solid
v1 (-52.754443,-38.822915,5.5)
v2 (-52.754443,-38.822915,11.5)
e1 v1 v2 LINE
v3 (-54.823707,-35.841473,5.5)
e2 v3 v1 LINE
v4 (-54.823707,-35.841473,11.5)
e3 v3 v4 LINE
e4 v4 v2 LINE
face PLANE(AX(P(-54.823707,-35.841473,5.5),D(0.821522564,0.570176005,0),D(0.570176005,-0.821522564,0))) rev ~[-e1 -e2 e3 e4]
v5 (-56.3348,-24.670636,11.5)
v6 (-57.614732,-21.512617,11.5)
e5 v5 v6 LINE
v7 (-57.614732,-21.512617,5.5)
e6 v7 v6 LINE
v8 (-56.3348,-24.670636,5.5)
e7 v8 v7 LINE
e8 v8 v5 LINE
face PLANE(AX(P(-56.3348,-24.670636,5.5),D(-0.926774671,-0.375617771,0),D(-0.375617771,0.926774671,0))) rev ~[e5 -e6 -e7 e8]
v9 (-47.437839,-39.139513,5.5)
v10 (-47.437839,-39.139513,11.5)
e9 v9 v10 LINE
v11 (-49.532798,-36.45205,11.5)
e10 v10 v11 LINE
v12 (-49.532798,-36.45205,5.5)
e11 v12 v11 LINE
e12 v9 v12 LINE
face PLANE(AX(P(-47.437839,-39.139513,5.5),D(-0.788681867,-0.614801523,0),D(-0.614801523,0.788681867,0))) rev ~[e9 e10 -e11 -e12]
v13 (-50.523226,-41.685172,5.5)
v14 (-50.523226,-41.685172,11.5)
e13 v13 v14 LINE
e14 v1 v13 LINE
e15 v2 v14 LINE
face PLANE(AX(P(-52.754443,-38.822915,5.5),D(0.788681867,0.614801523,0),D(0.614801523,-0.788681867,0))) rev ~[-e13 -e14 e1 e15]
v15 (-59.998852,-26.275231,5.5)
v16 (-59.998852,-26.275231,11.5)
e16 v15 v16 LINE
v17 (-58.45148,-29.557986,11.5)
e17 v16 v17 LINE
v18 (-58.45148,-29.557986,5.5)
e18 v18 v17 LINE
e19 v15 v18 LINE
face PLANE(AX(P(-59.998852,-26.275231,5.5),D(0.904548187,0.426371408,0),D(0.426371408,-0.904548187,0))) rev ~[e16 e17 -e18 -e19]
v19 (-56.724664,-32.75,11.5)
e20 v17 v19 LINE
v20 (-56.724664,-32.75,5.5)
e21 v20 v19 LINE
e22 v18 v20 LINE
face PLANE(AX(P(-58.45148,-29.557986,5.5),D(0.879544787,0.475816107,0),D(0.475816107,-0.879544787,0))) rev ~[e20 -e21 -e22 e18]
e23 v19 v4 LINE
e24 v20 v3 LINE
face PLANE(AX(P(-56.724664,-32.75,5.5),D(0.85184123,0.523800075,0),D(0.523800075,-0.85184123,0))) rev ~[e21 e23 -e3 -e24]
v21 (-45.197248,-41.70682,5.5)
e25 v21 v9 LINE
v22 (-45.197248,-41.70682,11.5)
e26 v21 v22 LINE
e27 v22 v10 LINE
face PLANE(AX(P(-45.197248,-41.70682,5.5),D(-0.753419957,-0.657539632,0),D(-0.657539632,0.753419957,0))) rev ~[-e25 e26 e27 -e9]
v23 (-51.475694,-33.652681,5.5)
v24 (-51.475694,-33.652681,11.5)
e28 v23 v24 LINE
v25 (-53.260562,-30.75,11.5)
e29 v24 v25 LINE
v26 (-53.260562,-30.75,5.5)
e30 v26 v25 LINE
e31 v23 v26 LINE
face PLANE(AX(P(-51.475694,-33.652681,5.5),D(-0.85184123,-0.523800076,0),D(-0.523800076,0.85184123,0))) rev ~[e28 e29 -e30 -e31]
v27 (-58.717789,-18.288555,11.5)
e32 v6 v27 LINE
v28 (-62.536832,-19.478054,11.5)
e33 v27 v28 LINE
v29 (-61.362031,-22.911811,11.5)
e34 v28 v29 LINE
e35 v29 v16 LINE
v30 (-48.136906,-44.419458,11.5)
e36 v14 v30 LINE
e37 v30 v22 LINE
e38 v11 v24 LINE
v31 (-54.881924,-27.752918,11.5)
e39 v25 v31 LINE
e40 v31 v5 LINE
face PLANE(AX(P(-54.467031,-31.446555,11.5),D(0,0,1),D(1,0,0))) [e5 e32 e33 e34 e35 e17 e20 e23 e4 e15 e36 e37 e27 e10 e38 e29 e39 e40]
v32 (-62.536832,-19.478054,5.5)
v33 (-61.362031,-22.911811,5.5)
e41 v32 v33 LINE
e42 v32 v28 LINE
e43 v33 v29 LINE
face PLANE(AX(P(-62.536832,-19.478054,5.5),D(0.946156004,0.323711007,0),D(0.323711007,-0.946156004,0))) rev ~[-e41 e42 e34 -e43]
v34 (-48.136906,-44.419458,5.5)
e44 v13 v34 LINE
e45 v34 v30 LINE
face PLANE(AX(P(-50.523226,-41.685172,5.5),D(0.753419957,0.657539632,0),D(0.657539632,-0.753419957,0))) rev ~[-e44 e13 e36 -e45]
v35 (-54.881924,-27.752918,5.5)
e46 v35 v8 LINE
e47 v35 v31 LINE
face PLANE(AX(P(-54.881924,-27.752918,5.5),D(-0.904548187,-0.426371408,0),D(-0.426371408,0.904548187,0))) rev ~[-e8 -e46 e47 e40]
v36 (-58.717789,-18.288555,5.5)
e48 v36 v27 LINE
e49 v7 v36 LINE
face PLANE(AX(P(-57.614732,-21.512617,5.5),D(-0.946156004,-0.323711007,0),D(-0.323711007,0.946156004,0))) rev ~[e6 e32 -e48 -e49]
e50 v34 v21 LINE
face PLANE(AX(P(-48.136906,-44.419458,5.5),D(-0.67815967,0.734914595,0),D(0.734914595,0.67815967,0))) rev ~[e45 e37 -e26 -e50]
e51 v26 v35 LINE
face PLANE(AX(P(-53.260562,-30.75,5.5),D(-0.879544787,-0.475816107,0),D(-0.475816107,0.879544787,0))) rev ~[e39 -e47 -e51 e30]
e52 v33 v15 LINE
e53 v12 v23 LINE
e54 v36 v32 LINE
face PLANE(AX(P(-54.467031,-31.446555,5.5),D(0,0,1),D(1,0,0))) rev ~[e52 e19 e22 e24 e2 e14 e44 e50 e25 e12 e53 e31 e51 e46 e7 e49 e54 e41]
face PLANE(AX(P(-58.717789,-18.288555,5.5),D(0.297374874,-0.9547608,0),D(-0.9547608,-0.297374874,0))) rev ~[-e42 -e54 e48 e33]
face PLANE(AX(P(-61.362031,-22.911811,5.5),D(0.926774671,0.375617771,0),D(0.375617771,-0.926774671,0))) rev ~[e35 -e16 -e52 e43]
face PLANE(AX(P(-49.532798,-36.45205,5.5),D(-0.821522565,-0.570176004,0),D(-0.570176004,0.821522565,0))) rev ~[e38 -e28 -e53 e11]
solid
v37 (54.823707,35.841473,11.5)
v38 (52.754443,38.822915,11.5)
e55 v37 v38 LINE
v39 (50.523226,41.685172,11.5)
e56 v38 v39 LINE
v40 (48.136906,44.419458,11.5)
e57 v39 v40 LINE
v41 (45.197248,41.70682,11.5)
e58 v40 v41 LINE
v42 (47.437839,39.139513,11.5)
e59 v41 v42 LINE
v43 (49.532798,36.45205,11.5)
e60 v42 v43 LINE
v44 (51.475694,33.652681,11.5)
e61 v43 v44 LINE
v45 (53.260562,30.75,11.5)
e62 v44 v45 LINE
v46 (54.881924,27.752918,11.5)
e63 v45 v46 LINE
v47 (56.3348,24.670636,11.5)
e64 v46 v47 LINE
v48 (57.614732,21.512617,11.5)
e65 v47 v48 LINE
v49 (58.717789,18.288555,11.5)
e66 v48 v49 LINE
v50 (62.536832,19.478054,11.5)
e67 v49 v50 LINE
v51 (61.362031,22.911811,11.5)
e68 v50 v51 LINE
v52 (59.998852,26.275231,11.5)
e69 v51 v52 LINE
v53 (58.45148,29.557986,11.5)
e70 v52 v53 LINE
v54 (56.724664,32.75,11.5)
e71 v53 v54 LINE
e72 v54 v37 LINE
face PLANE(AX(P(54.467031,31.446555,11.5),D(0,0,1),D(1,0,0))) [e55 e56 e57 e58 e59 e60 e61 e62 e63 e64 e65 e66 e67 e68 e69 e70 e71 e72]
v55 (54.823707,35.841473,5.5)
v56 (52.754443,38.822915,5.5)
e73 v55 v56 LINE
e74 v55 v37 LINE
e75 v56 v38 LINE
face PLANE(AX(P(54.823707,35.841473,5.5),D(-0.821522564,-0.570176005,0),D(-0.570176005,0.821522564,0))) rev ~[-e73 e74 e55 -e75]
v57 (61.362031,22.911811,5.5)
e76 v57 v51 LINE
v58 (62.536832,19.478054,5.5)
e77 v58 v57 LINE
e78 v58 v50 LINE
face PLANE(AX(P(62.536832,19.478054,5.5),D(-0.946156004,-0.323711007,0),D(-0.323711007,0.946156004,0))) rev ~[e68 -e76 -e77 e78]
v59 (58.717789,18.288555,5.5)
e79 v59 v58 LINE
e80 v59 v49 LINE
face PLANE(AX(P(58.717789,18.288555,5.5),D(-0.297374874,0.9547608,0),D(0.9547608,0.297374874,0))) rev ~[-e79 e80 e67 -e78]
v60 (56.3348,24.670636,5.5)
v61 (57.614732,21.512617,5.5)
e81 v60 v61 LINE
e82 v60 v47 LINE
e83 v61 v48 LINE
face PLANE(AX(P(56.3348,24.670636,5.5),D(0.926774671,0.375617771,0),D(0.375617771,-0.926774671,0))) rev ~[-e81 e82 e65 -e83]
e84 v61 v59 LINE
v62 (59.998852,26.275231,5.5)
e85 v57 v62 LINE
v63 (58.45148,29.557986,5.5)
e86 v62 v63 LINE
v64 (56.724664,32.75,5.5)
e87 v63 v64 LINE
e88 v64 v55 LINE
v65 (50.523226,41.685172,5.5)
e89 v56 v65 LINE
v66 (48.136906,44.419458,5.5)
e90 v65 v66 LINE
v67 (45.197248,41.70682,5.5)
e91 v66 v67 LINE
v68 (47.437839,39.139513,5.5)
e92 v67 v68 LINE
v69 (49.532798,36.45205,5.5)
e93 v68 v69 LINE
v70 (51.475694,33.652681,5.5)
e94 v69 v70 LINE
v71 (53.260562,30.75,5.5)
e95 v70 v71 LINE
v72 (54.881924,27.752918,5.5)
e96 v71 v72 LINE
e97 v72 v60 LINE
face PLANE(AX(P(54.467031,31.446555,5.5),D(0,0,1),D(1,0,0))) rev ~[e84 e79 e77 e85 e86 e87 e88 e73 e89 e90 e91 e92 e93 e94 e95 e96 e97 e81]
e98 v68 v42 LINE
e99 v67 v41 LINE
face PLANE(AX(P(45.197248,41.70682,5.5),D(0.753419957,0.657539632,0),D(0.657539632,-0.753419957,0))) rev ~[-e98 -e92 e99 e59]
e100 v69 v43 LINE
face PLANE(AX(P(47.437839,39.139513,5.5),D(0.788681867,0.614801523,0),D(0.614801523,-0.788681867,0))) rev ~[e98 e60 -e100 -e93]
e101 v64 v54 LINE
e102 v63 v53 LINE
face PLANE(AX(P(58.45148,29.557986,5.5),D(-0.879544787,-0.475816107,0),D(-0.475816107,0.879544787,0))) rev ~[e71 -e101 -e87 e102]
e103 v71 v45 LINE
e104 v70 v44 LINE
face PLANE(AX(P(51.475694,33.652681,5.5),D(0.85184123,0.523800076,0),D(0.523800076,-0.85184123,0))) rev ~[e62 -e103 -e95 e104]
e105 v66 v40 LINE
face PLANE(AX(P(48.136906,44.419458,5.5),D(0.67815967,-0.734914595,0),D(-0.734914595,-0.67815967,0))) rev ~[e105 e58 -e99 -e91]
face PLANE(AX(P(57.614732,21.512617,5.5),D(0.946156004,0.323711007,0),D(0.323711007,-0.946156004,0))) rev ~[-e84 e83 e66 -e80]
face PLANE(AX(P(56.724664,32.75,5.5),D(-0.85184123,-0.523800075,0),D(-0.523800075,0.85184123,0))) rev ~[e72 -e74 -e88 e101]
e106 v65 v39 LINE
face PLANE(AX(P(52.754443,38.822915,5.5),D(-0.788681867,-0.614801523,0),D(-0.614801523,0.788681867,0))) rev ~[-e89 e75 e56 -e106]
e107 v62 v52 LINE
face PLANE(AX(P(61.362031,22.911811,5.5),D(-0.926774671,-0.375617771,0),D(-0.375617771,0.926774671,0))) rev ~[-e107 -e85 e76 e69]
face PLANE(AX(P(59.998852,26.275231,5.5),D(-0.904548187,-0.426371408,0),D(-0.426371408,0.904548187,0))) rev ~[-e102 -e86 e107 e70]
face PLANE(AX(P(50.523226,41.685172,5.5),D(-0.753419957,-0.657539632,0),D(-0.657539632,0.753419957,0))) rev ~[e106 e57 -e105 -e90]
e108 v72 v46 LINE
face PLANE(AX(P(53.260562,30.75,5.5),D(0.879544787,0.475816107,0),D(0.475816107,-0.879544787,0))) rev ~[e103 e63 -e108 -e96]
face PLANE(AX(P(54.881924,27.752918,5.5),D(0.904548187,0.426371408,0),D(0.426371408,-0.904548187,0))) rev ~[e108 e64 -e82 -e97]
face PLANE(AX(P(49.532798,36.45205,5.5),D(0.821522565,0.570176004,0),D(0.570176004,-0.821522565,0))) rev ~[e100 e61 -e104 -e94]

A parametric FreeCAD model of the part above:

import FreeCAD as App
import Part
import Sketcher
from FreeCAD import Vector

doc = App.newDocument("Part")
body = doc.addObject("PartDesign::Body", "Body")

sketch1 = body.newObject("Sketcher::SketchObject", "Sketch")
sketch1.AttachmentSupport = (doc.getObject("XY_Plane"), [""])
sketch1.MapMode = "FlatFace"
sketch1.AttachmentOffset = App.Placement(Vector(0, 0, 5.5), App.Rotation())
sketch1.addGeometry(Part.LineSegment(Vector(62.536832, 19.478054, 0), Vector(61.362031, 22.911811, 0)), False)
sketch1.addGeometry(Part.LineSegment(Vector(61.362031, 22.911811, 0), Vector(59.998852, 26.275231, 0)), False)
sketch1.addGeometry(Part.LineSegment(Vector(59.998852, 26.275231, 0), Vector(58.45148, 29.557986, 0)), False)
sketch1.addGeometry(Part.LineSegment(Vector(58.45148, 29.557986, 0), Vector(56.724664, 32.75, 0)), False)
sketch1.addGeometry(Part.LineSegment(Vector(56.724664, 32.75, 0), Vector(54.823707, 35.841473, 0)), False)
sketch1.addGeometry(Part.LineSegment(Vector(54.823707, 35.841473, 0), Vector(52.754443, 38.822915, 0)), False)
sketch1.addGeometry(Part.LineSegment(Vector(52.754443, 38.822915, 0), Vector(50.523226, 41.685172, 0)), False)
sketch1.addGeometry(Part.LineSegment(Vector(50.523226, 41.685172, 0), Vector(48.136906, 44.419458, 0)), False)
sketch1.addGeometry(Part.LineSegment(Vector(48.136906, 44.419458, 0), Vector(45.197248, 41.70682, 0)), False)
sketch1.addGeometry(Part.LineSegment(Vector(45.197248, 41.70682, 0), Vector(47.437839, 39.139513, 0)), False)
sketch1.addGeometry(Part.LineSegment(Vector(47.437839, 39.139513, 0), Vector(49.532798, 36.45205, 0)), False)
sketch1.addGeometry(Part.LineSegment(Vector(49.532798, 36.45205, 0), Vector(51.475694, 33.652681, 0)), False)
sketch1.addGeometry(Part.LineSegment(Vector(51.475694, 33.652681, 0), Vector(53.260562, 30.75, 0)), False)
sketch1.addGeometry(Part.LineSegment(Vector(53.260562, 30.75, 0), Vector(54.881924, 27.752918, 0)), False)
sketch1.addGeometry(Part.LineSegment(Vector(54.881924, 27.752918, 0), Vector(56.3348, 24.670636, 0)), False)
sketch1.addGeometry(Part.LineSegment(Vector(56.3348, 24.670636, 0), Vector(57.614732, 21.512617, 0)), False)
sketch1.addGeometry(Part.LineSegment(Vector(57.614732, 21.512617, 0), Vector(58.717789, 18.288555, 0)), False)
sketch1.addGeometry(Part.LineSegment(Vector(58.717789, 18.288555, 0), Vector(62.536832, 19.478054, 0)), False)
sketch1.addConstraint(Sketcher.Constraint("Coincident", 0, 2, 1, 1))
sketch1.addConstraint(Sketcher.Constraint("Coincident", 1, 2, 2, 1))
sketch1.addConstraint(Sketcher.Constraint("Coincident", 2, 2, 3, 1))
sketch1.addConstraint(Sketcher.Constraint("Coincident", 3, 2, 4, 1))
sketch1.addConstraint(Sketcher.Constraint("Coincident", 4, 2, 5, 1))
sketch1.addConstraint(Sketcher.Constraint("Coincident", 5, 2, 6, 1))
sketch1.addConstraint(Sketcher.Constraint("Coincident", 6, 2, 7, 1))
sketch1.addConstraint(Sketcher.Constraint("Coincident", 7, 2, 8, 1))
sketch1.addConstraint(Sketcher.Constraint("Coincident", 8, 2, 9, 1))
sketch1.addConstraint(Sketcher.Constraint("Coincident", 9, 2, 10, 1))
sketch1.addConstraint(Sketcher.Constraint("Coincident", 10, 2, 11, 1))
sketch1.addConstraint(Sketcher.Constraint("Coincident", 11, 2, 12, 1))
sketch1.addConstraint(Sketcher.Constraint("Coincident", 12, 2, 13, 1))
sketch1.addConstraint(Sketcher.Constraint("Coincident", 13, 2, 14, 1))
sketch1.addConstraint(Sketcher.Constraint("Coincident", 14, 2, 15, 1))
sketch1.addConstraint(Sketcher.Constraint("Coincident", 15, 2, 16, 1))
sketch1.addConstraint(Sketcher.Constraint("Coincident", 16, 2, 17, 1))
sketch1.addConstraint(Sketcher.Constraint("Coincident", 17, 2, 0, 1))
sketch1.addConstraint(Sketcher.Constraint("Distance", 8, 4.0))
sketch1.addConstraint(Sketcher.Constraint("Distance", 17, 4.0))
sketch1.addConstraint(Sketcher.Constraint("DistanceY", 12, 2, 3, 2, 2.0))
sketch1.addConstraint(Sketcher.Constraint("DistanceY", -1, 1, 3, 2, 32.75))
sketch1.addConstraint(Sketcher.Constraint("DistanceX", -1, 1, 14, 2, 56.3348))
sketch1.addConstraint(Sketcher.Constraint("DistanceY", 4, 2, 6, 2, 5.843699))
sketch1.addConstraint(Sketcher.Constraint("DistanceX", 7, 2, 4, 2, 6.686801))
sketch1.addConstraint(Sketcher.Constraint("DistanceY", 5, 2, 9, 2, 0.316598))
sketch1.addConstraint(Sketcher.Constraint("DistanceX", 12, 2, 3, 2, 3.464102))
sketch1.addConstraint(Sketcher.Constraint("DistanceX", 15, 2, 0, 2, 3.7473))
sketch1.addConstraint(Sketcher.Constraint("DistanceY", 15, 2, 13, 2, 6.240301))
sketch1.addConstraint(Sketcher.Constraint("DistanceX", 0, 2, 17, 2, 1.174801))
sketch1.addConstraint(Sketcher.Constraint("DistanceY", 16, 2, 17, 2, 1.189499))
sketch1.addConstraint(Sketcher.Constraint("DistanceX", -1, 1, 0, 2, 61.362031))
sketch1.addConstraint(Sketcher.Constraint("DistanceY", -1, 1, 0, 2, 22.911811))
sketch1.addConstraint(Sketcher.Constraint("DistanceY", -1, 1, 1, 2, 26.275231))
sketch1.addConstraint(Sketcher.Constraint("DistanceX", -1, 1, 2, 2, 58.45148))
sketch1.addConstraint(Sketcher.Constraint("DistanceY", -1, 1, 7, 2, 44.419458))
sketch1.addConstraint(Sketcher.Constraint("DistanceY", -1, 1, 8, 2, 41.70682))
sketch1.addConstraint(Sketcher.Constraint("DistanceX", -1, 1, 9, 2, 47.437839))
sketch1.addConstraint(Sketcher.Constraint("DistanceY", -1, 1, 10, 2, 36.45205))
sketch1.addConstraint(Sketcher.Constraint("DistanceY", -1, 1, 11, 2, 33.652681))
sketch1.addConstraint(Sketcher.Constraint("DistanceY", -1, 1, 13, 2, 27.752918))
sketch1.addConstraint(Sketcher.Constraint("DistanceX", 1, 2, 0, 2, 1.363179))
sketch1.addConstraint(Sketcher.Constraint("DistanceX", 3, 2, 1, 2, 3.274188))
sketch1.addConstraint(Sketcher.Constraint("DistanceY", 0, 2, 4, 2, 12.929662))
sketch1.addConstraint(Sketcher.Constraint("DistanceY", 4, 2, 5, 2, 2.981442))
sketch1.addConstraint(Sketcher.Constraint("DistanceX", 5, 2, 3, 2, 3.970221))
sketch1.addConstraint(Sketcher.Constraint("DistanceY", 2, 2, 5, 2, 9.264929))
sketch1.addConstraint(Sketcher.Constraint("DistanceX", 6, 2, 4, 2, 4.30048))
sketch1.addConstraint(Sketcher.Constraint("DistanceX", 8, 2, 9, 2, 2.240591))
sketch1.addConstraint(Sketcher.Constraint("DistanceX", 9, 2, 10, 2, 2.094959))
sketch1.addConstraint(Sketcher.Constraint("DistanceX", 11, 2, 3, 2, 5.24897))
sketch1.addConstraint(Sketcher.Constraint("DistanceX", 12, 2, 13, 2, 1.621361))
sketch1.addConstraint(Sketcher.Constraint("DistanceY", 14, 2, 13, 2, 3.082282))
sketch1.addConstraint(Sketcher.Constraint("DistanceY", 16, 2, 14, 2, 6.382082))
pad1 = body.newObject("PartDesign::Pad", "Pad")
pad1.Profile = sketch1
pad1.Length = 6
body2 = doc.addObject("PartDesign::Body", "Body001")

sketch2 = body2.newObject("Sketcher::SketchObject", "Sketch001")
sketch2.AttachmentSupport = (doc.getObject("XY_Plane001"), [""])
sketch2.MapMode = "FlatFace"
sketch2.AttachmentOffset = App.Placement(Vector(0, 0, 5.5), App.Rotation())
sketch2.addGeometry(Part.LineSegment(Vector(-62.536832, -19.478054, 0), Vector(-61.362031, -22.911811, 0)), False)
sketch2.addGeometry(Part.LineSegment(Vector(-61.362031, -22.911811, 0), Vector(-59.998852, -26.275231, 0)), False)
sketch2.addGeometry(Part.LineSegment(Vector(-59.998852, -26.275231, 0), Vector(-58.45148, -29.557986, 0)), False)
sketch2.addGeometry(Part.LineSegment(Vector(-58.45148, -29.557986, 0), Vector(-56.724664, -32.75, 0)), False)
sketch2.addGeometry(Part.LineSegment(Vector(-56.724664, -32.75, 0), Vector(-54.823707, -35.841473, 0)), False)
sketch2.addGeometry(Part.LineSegment(Vector(-54.823707, -35.841473, 0), Vector(-52.754443, -38.822915, 0)), False)
sketch2.addGeometry(Part.LineSegment(Vector(-52.754443, -38.822915, 0), Vector(-50.523226, -41.685172, 0)), False)
sketch2.addGeometry(Part.LineSegment(Vector(-50.523226, -41.685172, 0), Vector(-48.136906, -44.419458, 0)), False)
sketch2.addGeometry(Part.LineSegment(Vector(-48.136906, -44.419458, 0), Vector(-45.197248, -41.70682, 0)), False)
sketch2.addGeometry(Part.LineSegment(Vector(-45.197248, -41.70682, 0), Vector(-47.437839, -39.139513, 0)), False)
sketch2.addGeometry(Part.LineSegment(Vector(-47.437839, -39.139513, 0), Vector(-49.532798, -36.45205, 0)), False)
sketch2.addGeometry(Part.LineSegment(Vector(-49.532798, -36.45205, 0), Vector(-51.475694, -33.652681, 0)), False)
sketch2.addGeometry(Part.LineSegment(Vector(-51.475694, -33.652681, 0), Vector(-53.260562, -30.75, 0)), False)
sketch2.addGeometry(Part.LineSegment(Vector(-53.260562, -30.75, 0), Vector(-54.881924, -27.752918, 0)), False)
sketch2.addGeometry(Part.LineSegment(Vector(-54.881924, -27.752918, 0), Vector(-56.3348, -24.670636, 0)), False)
sketch2.addGeometry(Part.LineSegment(Vector(-56.3348, -24.670636, 0), Vector(-57.614732, -21.512617, 0)), False)
sketch2.addGeometry(Part.LineSegment(Vector(-57.614732, -21.512617, 0), Vector(-58.717789, -18.288555, 0)), False)
sketch2.addGeometry(Part.LineSegment(Vector(-58.717789, -18.288555, 0), Vector(-62.536832, -19.478054, 0)), False)
sketch2.addConstraint(Sketcher.Constraint("Coincident", 0, 2, 1, 1))
sketch2.addConstraint(Sketcher.Constraint("Coincident", 1, 2, 2, 1))
sketch2.addConstraint(Sketcher.Constraint("Coincident", 2, 2, 3, 1))
sketch2.addConstraint(Sketcher.Constraint("Coincident", 3, 2, 4, 1))
sketch2.addConstraint(Sketcher.Constraint("Coincident", 4, 2, 5, 1))
sketch2.addConstraint(Sketcher.Constraint("Coincident", 5, 2, 6, 1))
sketch2.addConstraint(Sketcher.Constraint("Coincident", 6, 2, 7, 1))
sketch2.addConstraint(Sketcher.Constraint("Coincident", 7, 2, 8, 1))
sketch2.addConstraint(Sketcher.Constraint("Coincident", 8, 2, 9, 1))
sketch2.addConstraint(Sketcher.Constraint("Coincident", 9, 2, 10, 1))
sketch2.addConstraint(Sketcher.Constraint("Coincident", 10, 2, 11, 1))
sketch2.addConstraint(Sketcher.Constraint("Coincident", 11, 2, 12, 1))
sketch2.addConstraint(Sketcher.Constraint("Coincident", 12, 2, 13, 1))
sketch2.addConstraint(Sketcher.Constraint("Coincident", 13, 2, 14, 1))
sketch2.addConstraint(Sketcher.Constraint("Coincident", 14, 2, 15, 1))
sketch2.addConstraint(Sketcher.Constraint("Coincident", 15, 2, 16, 1))
sketch2.addConstraint(Sketcher.Constraint("Coincident", 16, 2, 17, 1))
sketch2.addConstraint(Sketcher.Constraint("Coincident", 17, 2, 0, 1))
sketch2.addConstraint(Sketcher.Constraint("Distance", 8, 4.0))
sketch2.addConstraint(Sketcher.Constraint("Distance", 17, 4.0))
sketch2.addConstraint(Sketcher.Constraint("DistanceY", 3, 2, 12, 2, 2.0))
sketch2.addConstraint(Sketcher.Constraint("DistanceY", 3, 2, -1, 1, 32.75))
sketch2.addConstraint(Sketcher.Constraint("DistanceX", 14, 2, -1, 1, 56.3348))
sketch2.addConstraint(Sketcher.Constraint("DistanceY", 6, 2, 4, 2, 5.843699))
sketch2.addConstraint(Sketcher.Constraint("DistanceX", 4, 2, 7, 2, 6.686801))
sketch2.addConstraint(Sketcher.Constraint("DistanceY", 9, 2, 5, 2, 0.316598))
sketch2.addConstraint(Sketcher.Constraint("DistanceX", 3, 2, 12, 2, 3.464102))
sketch2.addConstraint(Sketcher.Constraint("DistanceX", 0, 2, 15, 2, 3.7473))
sketch2.addConstraint(Sketcher.Constraint("DistanceY", 13, 2, 15, 2, 6.240301))
sketch2.addConstraint(Sketcher.Constraint("DistanceX", 17, 2, 0, 2, 1.174801))
sketch2.addConstraint(Sketcher.Constraint("DistanceY", 17, 2, 16, 2, 1.189499))
sketch2.addConstraint(Sketcher.Constraint("DistanceX", 0, 2, -1, 1, 61.362031))
sketch2.addConstraint(Sketcher.Constraint("DistanceY", 0, 2, -1, 1, 22.911811))
sketch2.addConstraint(Sketcher.Constraint("DistanceY", 1, 2, -1, 1, 26.275231))
sketch2.addConstraint(Sketcher.Constraint("DistanceX", 2, 2, -1, 1, 58.45148))
sketch2.addConstraint(Sketcher.Constraint("DistanceY", 7, 2, -1, 1, 44.419458))
sketch2.addConstraint(Sketcher.Constraint("DistanceY", 8, 2, -1, 1, 41.70682))
sketch2.addConstraint(Sketcher.Constraint("DistanceX", 9, 2, -1, 1, 47.437839))
sketch2.addConstraint(Sketcher.Constraint("DistanceY", 10, 2, -1, 1, 36.45205))
sketch2.addConstraint(Sketcher.Constraint("DistanceY", 11, 2, -1, 1, 33.652681))
sketch2.addConstraint(Sketcher.Constraint("DistanceY", 13, 2, -1, 1, 27.752918))
sketch2.addConstraint(Sketcher.Constraint("DistanceX", 0, 2, 1, 2, 1.363179))
sketch2.addConstraint(Sketcher.Constraint("DistanceX", 1, 2, 3, 2, 3.274188))
sketch2.addConstraint(Sketcher.Constraint("DistanceY", 4, 2, 0, 2, 12.929662))
sketch2.addConstraint(Sketcher.Constraint("DistanceY", 5, 2, 4, 2, 2.981442))
sketch2.addConstraint(Sketcher.Constraint("DistanceX", 3, 2, 5, 2, 3.970221))
sketch2.addConstraint(Sketcher.Constraint("DistanceY", 5, 2, 2, 2, 9.264929))
sketch2.addConstraint(Sketcher.Constraint("DistanceX", 4, 2, 6, 2, 4.30048))
sketch2.addConstraint(Sketcher.Constraint("DistanceX", 9, 2, 8, 2, 2.240591))
sketch2.addConstraint(Sketcher.Constraint("DistanceX", 10, 2, 9, 2, 2.094959))
sketch2.addConstraint(Sketcher.Constraint("DistanceX", 3, 2, 11, 2, 5.24897))
sketch2.addConstraint(Sketcher.Constraint("DistanceX", 13, 2, 12, 2, 1.621361))
sketch2.addConstraint(Sketcher.Constraint("DistanceY", 13, 2, 14, 2, 3.082282))
sketch2.addConstraint(Sketcher.Constraint("DistanceY", 14, 2, 16, 2, 6.382082))
pad2 = body2.newObject("PartDesign::Pad", "Pad001")
pad2.Profile = sketch2
pad2.Length = 6

doc.recompute()
